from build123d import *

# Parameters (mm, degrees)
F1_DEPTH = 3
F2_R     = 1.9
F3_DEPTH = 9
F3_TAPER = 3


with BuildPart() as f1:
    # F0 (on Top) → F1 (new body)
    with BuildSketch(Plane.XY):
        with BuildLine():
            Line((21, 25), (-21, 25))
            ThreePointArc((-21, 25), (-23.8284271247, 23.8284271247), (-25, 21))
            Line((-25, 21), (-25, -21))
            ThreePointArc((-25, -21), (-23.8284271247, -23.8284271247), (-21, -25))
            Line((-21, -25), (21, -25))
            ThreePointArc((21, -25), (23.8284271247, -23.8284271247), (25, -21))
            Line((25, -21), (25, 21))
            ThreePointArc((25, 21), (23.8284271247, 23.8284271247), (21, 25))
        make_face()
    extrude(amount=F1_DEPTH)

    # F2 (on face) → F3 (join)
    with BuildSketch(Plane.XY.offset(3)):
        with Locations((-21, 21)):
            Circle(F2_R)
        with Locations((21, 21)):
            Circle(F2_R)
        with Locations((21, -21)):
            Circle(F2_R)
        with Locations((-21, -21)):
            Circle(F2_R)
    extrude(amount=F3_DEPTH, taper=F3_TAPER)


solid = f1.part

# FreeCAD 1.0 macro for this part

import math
import FreeCAD as App
import Part
import Sketcher

doc = App.newDocument("Part")
body = doc.addObject("PartDesign::Body", "Body")

# Sketch on XY plane
sketch1 = body.newObject("Sketcher::SketchObject", "Sketch")
sketch1.AttachmentSupport = (doc.getObject("XY_Plane"), [""])
sketch1.MapMode = "FlatFace"
sketch1.addGeometry([
    Part.LineSegment(App.Vector(21, 25, 0), App.Vector(-21, 25, 0)),  # 0
    Part.ArcOfCircle(Part.Circle(App.Vector(-21, 21, 0), App.Vector(0, 0, 1), 4), math.radians(90), math.radians(180)),  # 1
    Part.LineSegment(App.Vector(-25, 21, 0), App.Vector(-25, -21, 0)),  # 2
    Part.ArcOfCircle(Part.Circle(App.Vector(-21, -21, 0), App.Vector(0, 0, 1), 4), math.radians(180), math.radians(270)),  # 3
    Part.LineSegment(App.Vector(-21, -25, 0), App.Vector(21, -25, 0)),  # 4
    Part.ArcOfCircle(Part.Circle(App.Vector(21, -21, 0), App.Vector(0, 0, 1), 4), math.radians(-90), math.radians(0)),  # 5
    Part.LineSegment(App.Vector(25, -21, 0), App.Vector(25, 21, 0)),  # 6
    Part.ArcOfCircle(Part.Circle(App.Vector(21, 21, 0), App.Vector(0, 0, 1), 4), math.radians(0), math.radians(90)),  # 7
], False)
sketch1.addConstraint([
    Sketcher.Constraint("Tangent", 0, 2, 1, 1),
    Sketcher.Constraint("Tangent", 1, 2, 2, 1),
    Sketcher.Constraint("Tangent", 2, 2, 3, 1),
    Sketcher.Constraint("Tangent", 3, 2, 4, 1),
    Sketcher.Constraint("Tangent", 4, 2, 5, 1),
    Sketcher.Constraint("Tangent", 5, 2, 6, 1),
    Sketcher.Constraint("Tangent", 6, 2, 7, 1),
    Sketcher.Constraint("Tangent", 7, 2, 0, 1),
    Sketcher.Constraint("Horizontal", 0),
    Sketcher.Constraint("Vertical", 2),
    Sketcher.Constraint("Horizontal", 4),
    Sketcher.Constraint("Vertical", 6),
    Sketcher.Constraint("Equal", 1, 3),
    Sketcher.Constraint("Equal", 3, 5),
    Sketcher.Constraint("Equal", 5, 7),
    Sketcher.Constraint("Symmetric", 1, 3, 5, 3, -1, 1),
    Sketcher.Constraint("Equal", 4, 2),
    Sketcher.Constraint("Radius", 1, 4.0),
    Sketcher.Constraint("DistanceX", 0, 2, 0, 1, 42.0),
])
pad1 = body.newObject("PartDesign::Pad", "Pad")
pad1.Profile = sketch1
pad1.Length = 3

# Sketch on XY plane
sketch2 = body.newObject("Sketcher::SketchObject", "Sketch001")
sketch2.AttachmentSupport = (doc.getObject("XY_Plane"), [""])
sketch2.MapMode = "FlatFace"
sketch2.AttachmentOffset = App.Placement(App.Vector(0, 0, 3), App.Rotation())
sketch2.addGeometry([
    Part.Circle(App.Vector(-21, 21, 0), App.Vector(0, 0, 1), 1.9),
    Part.Circle(App.Vector(21, 21, 0), App.Vector(0, 0, 1), 1.9),
    Part.Circle(App.Vector(21, -21, 0), App.Vector(0, 0, 1), 1.9),
    Part.Circle(App.Vector(-21, -21, 0), App.Vector(0, 0, 1), 1.9),
], False)
sketch2.addConstraint([
    Sketcher.Constraint("Equal", 0, 1),
    Sketcher.Constraint("Equal", 1, 2),
    Sketcher.Constraint("Equal", 2, 3),
    Sketcher.Constraint("Symmetric", 0, 3, 2, 3, -1, 1),
    Sketcher.Constraint("Symmetric", 1, 3, 3, 3, -1, 1),
    Sketcher.Constraint("Symmetric", 0, 3, 1, 3, -2),
    Sketcher.Constraint("Diameter", 0, 3.8),
    Sketcher.Constraint("DistanceX", 0, 3, -1, 1, 21.0),
    Sketcher.Constraint("DistanceY", -1, 1, 0, 3, 21.0),
])
pad2 = body.newObject("PartDesign::Pad", "Pad001")
pad2.Profile = sketch2
pad2.Length = 9
pad2.TaperAngle = -3

doc.recompute()
